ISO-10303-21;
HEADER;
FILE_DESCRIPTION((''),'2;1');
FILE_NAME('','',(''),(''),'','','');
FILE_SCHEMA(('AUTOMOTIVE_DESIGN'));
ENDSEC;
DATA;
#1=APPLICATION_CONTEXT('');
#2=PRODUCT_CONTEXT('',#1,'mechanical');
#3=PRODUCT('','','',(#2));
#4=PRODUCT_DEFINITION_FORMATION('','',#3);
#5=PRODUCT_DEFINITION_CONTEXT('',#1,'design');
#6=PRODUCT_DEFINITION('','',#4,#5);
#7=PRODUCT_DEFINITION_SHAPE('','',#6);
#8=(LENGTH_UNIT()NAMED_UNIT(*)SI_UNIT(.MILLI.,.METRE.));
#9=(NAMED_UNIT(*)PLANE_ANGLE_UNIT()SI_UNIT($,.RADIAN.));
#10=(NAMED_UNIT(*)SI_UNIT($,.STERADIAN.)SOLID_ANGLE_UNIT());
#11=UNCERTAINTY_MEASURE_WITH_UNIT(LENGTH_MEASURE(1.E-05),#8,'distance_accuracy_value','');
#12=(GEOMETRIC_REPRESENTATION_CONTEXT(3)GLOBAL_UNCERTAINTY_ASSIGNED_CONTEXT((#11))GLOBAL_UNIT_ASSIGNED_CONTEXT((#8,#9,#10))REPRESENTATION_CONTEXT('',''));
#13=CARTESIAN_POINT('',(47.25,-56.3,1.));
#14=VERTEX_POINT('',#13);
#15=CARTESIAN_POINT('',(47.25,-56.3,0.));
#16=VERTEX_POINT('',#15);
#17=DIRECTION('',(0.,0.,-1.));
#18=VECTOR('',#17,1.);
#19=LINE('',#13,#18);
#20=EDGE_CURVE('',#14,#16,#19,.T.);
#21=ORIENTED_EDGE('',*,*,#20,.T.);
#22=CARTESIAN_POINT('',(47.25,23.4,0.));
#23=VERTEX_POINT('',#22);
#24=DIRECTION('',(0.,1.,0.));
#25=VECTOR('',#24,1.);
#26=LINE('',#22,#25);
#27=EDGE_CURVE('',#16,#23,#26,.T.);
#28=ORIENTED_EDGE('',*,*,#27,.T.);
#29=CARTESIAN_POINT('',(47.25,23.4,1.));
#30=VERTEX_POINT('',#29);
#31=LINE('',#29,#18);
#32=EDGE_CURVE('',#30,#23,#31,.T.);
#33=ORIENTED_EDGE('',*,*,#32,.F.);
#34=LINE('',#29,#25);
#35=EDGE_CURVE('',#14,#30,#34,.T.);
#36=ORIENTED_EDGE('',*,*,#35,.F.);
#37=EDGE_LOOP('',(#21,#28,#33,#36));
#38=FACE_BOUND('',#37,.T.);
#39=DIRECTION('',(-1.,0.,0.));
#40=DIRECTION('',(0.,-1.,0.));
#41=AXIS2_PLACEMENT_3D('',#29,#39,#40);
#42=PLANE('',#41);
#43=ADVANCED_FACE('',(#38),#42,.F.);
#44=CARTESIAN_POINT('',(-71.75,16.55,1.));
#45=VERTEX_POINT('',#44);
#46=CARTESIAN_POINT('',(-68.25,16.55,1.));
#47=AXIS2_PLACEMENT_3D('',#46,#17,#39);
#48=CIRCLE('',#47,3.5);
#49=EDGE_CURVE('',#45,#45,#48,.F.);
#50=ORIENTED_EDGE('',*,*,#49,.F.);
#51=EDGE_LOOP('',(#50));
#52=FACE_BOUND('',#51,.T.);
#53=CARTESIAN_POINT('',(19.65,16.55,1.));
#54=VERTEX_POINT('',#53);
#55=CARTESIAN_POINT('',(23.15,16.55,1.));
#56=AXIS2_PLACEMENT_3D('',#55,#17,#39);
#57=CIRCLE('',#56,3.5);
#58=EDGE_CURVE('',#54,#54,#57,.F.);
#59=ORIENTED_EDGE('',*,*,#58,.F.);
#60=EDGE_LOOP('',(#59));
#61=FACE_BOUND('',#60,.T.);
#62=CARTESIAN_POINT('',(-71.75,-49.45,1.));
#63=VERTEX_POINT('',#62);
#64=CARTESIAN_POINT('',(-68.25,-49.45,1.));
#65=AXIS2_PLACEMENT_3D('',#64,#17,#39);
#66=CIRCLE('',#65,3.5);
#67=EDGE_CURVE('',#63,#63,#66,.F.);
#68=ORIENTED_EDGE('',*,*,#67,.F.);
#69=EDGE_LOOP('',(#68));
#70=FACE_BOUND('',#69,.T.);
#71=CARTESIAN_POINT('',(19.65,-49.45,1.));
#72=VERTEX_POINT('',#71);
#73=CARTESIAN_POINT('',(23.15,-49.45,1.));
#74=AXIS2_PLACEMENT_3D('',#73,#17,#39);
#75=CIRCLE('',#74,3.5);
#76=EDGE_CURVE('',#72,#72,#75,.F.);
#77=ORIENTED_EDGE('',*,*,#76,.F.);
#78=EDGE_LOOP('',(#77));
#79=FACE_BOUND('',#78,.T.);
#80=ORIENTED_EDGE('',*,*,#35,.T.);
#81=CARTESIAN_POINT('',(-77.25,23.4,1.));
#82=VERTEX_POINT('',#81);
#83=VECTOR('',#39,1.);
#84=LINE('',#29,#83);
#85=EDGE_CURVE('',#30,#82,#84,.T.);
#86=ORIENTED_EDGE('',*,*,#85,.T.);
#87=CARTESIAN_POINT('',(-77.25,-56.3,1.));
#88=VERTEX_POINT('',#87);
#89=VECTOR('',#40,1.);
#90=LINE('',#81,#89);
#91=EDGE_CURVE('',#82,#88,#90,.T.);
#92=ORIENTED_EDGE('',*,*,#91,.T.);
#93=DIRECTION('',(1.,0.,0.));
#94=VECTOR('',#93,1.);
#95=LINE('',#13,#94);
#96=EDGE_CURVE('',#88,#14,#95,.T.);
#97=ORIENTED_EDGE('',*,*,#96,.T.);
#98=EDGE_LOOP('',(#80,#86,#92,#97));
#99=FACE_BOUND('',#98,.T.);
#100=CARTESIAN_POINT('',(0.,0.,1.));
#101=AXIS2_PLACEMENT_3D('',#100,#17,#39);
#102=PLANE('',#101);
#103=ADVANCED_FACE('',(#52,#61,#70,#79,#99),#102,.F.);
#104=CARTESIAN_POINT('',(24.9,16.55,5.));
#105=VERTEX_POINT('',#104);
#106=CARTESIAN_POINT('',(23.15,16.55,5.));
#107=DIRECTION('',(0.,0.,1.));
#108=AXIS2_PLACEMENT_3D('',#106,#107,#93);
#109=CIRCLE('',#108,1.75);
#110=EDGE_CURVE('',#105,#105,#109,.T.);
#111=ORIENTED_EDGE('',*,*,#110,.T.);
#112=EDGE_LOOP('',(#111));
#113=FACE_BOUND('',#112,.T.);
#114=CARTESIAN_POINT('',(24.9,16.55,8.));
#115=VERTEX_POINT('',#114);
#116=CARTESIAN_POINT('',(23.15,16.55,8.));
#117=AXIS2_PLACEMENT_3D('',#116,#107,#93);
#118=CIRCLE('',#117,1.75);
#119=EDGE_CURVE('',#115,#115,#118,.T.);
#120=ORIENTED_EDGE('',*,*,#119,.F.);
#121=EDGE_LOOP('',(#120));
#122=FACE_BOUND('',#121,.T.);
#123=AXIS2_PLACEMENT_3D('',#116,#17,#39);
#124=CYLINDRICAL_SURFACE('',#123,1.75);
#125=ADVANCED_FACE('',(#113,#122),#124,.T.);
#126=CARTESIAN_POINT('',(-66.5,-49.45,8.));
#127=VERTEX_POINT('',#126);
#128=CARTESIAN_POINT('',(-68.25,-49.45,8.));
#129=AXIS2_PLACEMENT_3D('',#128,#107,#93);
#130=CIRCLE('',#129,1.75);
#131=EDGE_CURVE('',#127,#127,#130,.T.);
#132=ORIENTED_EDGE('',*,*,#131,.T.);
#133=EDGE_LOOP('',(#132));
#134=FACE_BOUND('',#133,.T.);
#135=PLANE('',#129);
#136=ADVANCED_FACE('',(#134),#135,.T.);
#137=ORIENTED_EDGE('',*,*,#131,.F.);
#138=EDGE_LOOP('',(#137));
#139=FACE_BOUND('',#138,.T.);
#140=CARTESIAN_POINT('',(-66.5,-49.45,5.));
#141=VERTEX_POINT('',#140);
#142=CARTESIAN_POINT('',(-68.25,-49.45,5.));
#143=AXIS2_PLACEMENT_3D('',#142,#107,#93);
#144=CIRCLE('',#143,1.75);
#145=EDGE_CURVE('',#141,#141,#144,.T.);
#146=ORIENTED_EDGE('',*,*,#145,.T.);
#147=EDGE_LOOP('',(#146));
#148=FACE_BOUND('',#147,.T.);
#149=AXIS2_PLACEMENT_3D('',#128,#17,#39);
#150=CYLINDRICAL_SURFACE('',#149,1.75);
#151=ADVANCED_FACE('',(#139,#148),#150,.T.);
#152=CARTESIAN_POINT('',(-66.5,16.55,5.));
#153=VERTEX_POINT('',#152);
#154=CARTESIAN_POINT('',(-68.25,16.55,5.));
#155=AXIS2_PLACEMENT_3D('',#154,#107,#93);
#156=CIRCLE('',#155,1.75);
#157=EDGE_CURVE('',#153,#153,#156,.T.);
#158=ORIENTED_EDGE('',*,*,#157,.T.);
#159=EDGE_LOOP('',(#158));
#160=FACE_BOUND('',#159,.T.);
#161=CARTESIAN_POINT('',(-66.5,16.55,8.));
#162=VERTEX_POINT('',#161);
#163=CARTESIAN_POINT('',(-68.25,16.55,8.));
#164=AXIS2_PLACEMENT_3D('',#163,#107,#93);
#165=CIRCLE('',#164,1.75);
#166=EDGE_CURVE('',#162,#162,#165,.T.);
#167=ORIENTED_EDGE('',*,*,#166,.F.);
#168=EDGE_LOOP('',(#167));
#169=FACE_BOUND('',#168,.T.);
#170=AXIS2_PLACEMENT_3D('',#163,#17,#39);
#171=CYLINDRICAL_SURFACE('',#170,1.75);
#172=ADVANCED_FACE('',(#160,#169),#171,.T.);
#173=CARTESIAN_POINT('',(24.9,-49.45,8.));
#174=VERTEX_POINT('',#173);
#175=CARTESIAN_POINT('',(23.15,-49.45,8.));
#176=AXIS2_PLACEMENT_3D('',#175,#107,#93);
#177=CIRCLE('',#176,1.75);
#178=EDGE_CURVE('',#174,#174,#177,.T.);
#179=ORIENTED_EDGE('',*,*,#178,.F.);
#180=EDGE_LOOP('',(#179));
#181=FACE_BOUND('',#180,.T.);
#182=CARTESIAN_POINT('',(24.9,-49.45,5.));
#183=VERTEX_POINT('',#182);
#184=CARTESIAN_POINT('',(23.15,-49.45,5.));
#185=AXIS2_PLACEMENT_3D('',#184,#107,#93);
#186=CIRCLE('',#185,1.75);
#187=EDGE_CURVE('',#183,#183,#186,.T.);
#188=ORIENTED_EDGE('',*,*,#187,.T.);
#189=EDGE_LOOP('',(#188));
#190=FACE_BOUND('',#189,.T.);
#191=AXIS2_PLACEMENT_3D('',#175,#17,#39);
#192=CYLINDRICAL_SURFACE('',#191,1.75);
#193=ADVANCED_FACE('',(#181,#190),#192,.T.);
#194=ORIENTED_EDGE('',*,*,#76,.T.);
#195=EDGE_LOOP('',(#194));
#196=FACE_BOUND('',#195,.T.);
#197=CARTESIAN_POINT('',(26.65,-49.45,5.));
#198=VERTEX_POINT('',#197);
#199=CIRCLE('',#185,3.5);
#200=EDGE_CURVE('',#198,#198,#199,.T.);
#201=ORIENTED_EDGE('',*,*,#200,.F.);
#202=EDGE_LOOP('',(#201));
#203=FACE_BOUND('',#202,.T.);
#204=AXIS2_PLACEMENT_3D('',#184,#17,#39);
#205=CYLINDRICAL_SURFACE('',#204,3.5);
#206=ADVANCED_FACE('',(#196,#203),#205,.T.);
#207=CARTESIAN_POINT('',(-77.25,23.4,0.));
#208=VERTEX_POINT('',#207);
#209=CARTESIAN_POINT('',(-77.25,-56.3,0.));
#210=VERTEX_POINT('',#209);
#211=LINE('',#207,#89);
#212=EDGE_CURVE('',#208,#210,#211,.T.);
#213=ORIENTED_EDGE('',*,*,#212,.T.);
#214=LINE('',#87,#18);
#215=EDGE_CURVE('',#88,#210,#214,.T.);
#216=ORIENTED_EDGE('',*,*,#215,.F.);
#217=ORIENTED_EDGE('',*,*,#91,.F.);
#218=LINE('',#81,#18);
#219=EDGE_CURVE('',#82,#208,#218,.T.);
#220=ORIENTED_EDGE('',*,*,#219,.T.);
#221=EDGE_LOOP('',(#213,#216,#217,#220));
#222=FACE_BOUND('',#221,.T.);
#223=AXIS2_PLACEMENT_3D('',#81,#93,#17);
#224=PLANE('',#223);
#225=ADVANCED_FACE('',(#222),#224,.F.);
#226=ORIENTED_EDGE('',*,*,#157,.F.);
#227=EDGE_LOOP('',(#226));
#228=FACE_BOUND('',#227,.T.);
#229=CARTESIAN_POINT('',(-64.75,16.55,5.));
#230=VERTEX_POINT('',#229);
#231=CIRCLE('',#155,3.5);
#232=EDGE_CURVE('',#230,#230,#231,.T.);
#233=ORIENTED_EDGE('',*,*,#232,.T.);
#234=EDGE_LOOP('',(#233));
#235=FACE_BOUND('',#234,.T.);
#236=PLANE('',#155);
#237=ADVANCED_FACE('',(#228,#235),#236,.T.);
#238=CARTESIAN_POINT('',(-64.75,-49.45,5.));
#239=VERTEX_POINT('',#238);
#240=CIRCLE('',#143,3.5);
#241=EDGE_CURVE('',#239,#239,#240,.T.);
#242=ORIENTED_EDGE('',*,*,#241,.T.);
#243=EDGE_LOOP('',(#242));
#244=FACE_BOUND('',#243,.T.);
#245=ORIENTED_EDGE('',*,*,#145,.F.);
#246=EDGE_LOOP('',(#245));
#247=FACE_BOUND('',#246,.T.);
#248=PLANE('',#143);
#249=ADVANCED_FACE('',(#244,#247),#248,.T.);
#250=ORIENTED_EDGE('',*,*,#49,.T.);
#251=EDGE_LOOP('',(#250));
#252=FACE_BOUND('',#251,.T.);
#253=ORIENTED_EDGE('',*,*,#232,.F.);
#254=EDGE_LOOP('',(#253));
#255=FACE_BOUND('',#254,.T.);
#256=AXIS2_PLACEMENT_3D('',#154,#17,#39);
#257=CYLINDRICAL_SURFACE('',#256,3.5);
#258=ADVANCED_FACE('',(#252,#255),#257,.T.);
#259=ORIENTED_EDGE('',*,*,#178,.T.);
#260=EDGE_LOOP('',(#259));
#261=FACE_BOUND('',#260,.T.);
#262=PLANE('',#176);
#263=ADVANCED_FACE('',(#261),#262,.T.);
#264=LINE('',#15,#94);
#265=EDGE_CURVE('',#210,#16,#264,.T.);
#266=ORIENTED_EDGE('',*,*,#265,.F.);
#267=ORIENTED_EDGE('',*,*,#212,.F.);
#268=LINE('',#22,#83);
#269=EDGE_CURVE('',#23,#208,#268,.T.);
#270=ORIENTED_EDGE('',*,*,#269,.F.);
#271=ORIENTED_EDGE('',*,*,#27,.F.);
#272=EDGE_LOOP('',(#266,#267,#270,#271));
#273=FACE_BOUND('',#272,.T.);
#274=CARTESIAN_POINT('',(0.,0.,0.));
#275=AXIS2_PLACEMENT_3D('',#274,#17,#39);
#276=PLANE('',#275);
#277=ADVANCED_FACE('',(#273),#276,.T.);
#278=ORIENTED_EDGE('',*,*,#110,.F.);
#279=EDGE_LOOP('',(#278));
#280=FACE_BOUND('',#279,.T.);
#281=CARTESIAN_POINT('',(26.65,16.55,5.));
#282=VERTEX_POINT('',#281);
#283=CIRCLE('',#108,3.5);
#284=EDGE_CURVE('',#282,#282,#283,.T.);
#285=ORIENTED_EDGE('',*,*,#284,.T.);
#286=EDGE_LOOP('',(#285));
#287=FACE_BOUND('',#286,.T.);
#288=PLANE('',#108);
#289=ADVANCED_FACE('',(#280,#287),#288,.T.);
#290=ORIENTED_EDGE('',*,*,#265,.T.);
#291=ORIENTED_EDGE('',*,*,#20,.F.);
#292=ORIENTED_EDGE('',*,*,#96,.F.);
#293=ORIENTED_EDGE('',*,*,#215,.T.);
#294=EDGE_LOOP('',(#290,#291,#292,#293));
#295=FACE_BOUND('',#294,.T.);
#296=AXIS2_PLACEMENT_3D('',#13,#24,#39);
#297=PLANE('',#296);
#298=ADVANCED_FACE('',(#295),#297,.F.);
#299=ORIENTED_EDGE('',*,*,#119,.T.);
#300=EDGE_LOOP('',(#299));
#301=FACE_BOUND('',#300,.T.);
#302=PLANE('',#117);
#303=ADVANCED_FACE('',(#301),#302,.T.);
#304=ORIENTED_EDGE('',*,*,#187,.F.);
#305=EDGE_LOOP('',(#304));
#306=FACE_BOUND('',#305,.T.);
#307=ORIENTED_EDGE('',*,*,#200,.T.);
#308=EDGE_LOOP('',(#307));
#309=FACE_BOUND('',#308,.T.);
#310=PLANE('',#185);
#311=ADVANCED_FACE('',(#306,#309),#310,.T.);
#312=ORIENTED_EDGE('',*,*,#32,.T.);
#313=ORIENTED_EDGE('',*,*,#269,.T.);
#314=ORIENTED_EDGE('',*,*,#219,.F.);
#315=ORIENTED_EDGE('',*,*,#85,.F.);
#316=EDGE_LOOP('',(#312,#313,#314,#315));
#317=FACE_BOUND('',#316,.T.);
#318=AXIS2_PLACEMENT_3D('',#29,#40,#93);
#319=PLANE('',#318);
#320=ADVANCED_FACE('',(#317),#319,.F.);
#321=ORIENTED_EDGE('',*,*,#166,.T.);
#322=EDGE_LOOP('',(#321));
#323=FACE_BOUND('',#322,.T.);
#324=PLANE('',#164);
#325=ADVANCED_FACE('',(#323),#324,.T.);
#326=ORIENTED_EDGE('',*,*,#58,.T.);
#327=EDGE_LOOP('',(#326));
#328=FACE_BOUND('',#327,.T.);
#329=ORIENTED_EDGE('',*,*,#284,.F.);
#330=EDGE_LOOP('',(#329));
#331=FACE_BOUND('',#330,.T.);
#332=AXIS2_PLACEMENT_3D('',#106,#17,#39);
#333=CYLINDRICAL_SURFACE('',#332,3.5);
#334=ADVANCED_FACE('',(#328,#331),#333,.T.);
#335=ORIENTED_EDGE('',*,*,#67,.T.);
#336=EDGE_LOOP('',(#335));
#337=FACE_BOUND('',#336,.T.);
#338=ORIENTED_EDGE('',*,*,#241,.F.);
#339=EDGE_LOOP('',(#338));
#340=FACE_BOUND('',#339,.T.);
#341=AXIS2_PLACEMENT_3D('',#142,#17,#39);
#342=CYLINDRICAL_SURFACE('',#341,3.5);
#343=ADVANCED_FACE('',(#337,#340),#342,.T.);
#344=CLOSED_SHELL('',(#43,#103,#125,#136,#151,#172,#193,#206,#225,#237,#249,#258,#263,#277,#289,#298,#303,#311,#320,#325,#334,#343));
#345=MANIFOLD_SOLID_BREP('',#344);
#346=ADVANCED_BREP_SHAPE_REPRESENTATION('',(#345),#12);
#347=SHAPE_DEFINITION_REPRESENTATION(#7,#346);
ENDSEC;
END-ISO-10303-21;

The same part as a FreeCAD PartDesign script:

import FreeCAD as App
import Part
import Sketcher


def add_polygon(sketch, points):
    """Adds a closed chain of lines whose ends are joined by coincident constraints."""
    first, n = sketch.GeometryCount, len(points)
    for a, b in zip(points, points[1:] + points[:1]):
        sketch.addGeometry(Part.LineSegment(App.Vector(*a, 0), App.Vector(*b, 0)), False)
    for i in range(n):
        sketch.addConstraint(Sketcher.Constraint("Coincident", first + i, 2, first + (i + 1) % n, 1))

doc = App.newDocument("Part")
body = doc.addObject("PartDesign::Body", "Body")

# Sketch on XY plane
sketch1 = body.newObject("Sketcher::SketchObject", "Sketch")
sketch1.AttachmentSupport = (doc.getObject("XY_Plane"), [""])
sketch1.MapMode = "FlatFace"
add_polygon(sketch1, [(-77, 23), (-77, -56), (47, -56), (47, 23)])  # lines 0-3
sketch1.addConstraint([
    Sketcher.Constraint("Vertical", 0),
    Sketcher.Constraint("Horizontal", 1),
    Sketcher.Constraint("Vertical", 2),
    Sketcher.Constraint("Horizontal", 3),
    Sketcher.Constraint("DistanceX", 1, 1, 1, 2, 124.5),
    Sketcher.Constraint("DistanceY", 0, 2, 0, 1, 79.7),
    Sketcher.Constraint("DistanceY", 0, 2, -1, 1, 56.3),
    Sketcher.Constraint("DistanceX", 0, 2, -1, 1, 77.25),
])
pad1 = body.newObject("PartDesign::Pad", "Pad")
pad1.Profile = sketch1
pad1.Length = 1

# Sketch on XY plane
sketch2 = body.newObject("Sketcher::SketchObject", "Sketch001")
sketch2.AttachmentSupport = (doc.getObject("XY_Plane"), [""])
sketch2.MapMode = "FlatFace"
sketch2.AttachmentOffset = App.Placement(App.Vector(0, 0, 1), App.Rotation())
sketch2.addGeometry([
    Part.Circle(App.Vector(-68.2, 16.6, 0), App.Vector(0, 0, 1), 3.5),
    Part.Circle(App.Vector(23.1, 16.6, 0), App.Vector(0, 0, 1), 3.5),
    Part.Circle(App.Vector(23.1, -49.5, 0), App.Vector(0, 0, 1), 3.5),
    Part.Circle(App.Vector(-68.2, -49.5, 0), App.Vector(0, 0, 1), 3.5),
], False)
sketch2.addConstraint([
    Sketcher.Constraint("Equal", 0, 1),
    Sketcher.Constraint("Equal", 1, 2),
    Sketcher.Constraint("Equal", 2, 3),
    Sketcher.Constraint("Horizontal", 0, 3, 1, 3),
    Sketcher.Constraint("Horizontal", 2, 3, 3, 3),
    Sketcher.Constraint("Vertical", 1, 3, 2, 3),
    Sketcher.Constraint("Vertical", 0, 3, 3, 3),
    Sketcher.Constraint("Diameter", 0, 7.0),
    Sketcher.Constraint("DistanceY", 2, 3, 1, 3, 66.0),
    Sketcher.Constraint("DistanceX", 0, 3, 1, 3, 91.4),
    Sketcher.Constraint("DistanceX", 0, 3, -1, 1, 68.25),
    Sketcher.Constraint("DistanceY", -1, 1, 0, 3, 16.55),
])
pad2 = body.newObject("PartDesign::Pad", "Pad001")
pad2.Profile = sketch2
pad2.Length = 4

# Sketch on XY plane
sketch3 = body.newObject("Sketcher::SketchObject", "Sketch002")
sketch3.AttachmentSupport = (doc.getObject("XY_Plane"), [""])
sketch3.MapMode = "FlatFace"
sketch3.AttachmentOffset = App.Placement(App.Vector(0, 0, 5), App.Rotation())
sketch3.addGeometry([
    Part.Circle(App.Vector(-68.2, 16.6, 0), App.Vector(0, 0, 1), 1.8),
    Part.Circle(App.Vector(23.1, 16.6, 0), App.Vector(0, 0, 1), 1.8),
    Part.Circle(App.Vector(23.1, -49.5, 0), App.Vector(0, 0, 1), 1.8),
    Part.Circle(App.Vector(-68.2, -49.5, 0), App.Vector(0, 0, 1), 1.8),
], False)
sketch3.addConstraint([
    Sketcher.Constraint("Equal", 0, 1),
    Sketcher.Constraint("Equal", 1, 2),
    Sketcher.Constraint("Equal", 2, 3),
    Sketcher.Constraint("Horizontal", 0, 3, 1, 3),
    Sketcher.Constraint("Horizontal", 2, 3, 3, 3),
    Sketcher.Constraint("Vertical", 1, 3, 2, 3),
    Sketcher.Constraint("Vertical", 0, 3, 3, 3),
    Sketcher.Constraint("Diameter", 0, 3.5),
    Sketcher.Constraint("DistanceY", 2, 3, 1, 3, 66.0),
    Sketcher.Constraint("DistanceX", 0, 3, 1, 3, 91.4),
    Sketcher.Constraint("DistanceX", 0, 3, -1, 1, 68.25),
    Sketcher.Constraint("DistanceY", -1, 1, 0, 3, 16.55),
])
pad3 = body.newObject("PartDesign::Pad", "Pad002")
pad3.Profile = sketch3
pad3.Length = 3

doc.recompute()
